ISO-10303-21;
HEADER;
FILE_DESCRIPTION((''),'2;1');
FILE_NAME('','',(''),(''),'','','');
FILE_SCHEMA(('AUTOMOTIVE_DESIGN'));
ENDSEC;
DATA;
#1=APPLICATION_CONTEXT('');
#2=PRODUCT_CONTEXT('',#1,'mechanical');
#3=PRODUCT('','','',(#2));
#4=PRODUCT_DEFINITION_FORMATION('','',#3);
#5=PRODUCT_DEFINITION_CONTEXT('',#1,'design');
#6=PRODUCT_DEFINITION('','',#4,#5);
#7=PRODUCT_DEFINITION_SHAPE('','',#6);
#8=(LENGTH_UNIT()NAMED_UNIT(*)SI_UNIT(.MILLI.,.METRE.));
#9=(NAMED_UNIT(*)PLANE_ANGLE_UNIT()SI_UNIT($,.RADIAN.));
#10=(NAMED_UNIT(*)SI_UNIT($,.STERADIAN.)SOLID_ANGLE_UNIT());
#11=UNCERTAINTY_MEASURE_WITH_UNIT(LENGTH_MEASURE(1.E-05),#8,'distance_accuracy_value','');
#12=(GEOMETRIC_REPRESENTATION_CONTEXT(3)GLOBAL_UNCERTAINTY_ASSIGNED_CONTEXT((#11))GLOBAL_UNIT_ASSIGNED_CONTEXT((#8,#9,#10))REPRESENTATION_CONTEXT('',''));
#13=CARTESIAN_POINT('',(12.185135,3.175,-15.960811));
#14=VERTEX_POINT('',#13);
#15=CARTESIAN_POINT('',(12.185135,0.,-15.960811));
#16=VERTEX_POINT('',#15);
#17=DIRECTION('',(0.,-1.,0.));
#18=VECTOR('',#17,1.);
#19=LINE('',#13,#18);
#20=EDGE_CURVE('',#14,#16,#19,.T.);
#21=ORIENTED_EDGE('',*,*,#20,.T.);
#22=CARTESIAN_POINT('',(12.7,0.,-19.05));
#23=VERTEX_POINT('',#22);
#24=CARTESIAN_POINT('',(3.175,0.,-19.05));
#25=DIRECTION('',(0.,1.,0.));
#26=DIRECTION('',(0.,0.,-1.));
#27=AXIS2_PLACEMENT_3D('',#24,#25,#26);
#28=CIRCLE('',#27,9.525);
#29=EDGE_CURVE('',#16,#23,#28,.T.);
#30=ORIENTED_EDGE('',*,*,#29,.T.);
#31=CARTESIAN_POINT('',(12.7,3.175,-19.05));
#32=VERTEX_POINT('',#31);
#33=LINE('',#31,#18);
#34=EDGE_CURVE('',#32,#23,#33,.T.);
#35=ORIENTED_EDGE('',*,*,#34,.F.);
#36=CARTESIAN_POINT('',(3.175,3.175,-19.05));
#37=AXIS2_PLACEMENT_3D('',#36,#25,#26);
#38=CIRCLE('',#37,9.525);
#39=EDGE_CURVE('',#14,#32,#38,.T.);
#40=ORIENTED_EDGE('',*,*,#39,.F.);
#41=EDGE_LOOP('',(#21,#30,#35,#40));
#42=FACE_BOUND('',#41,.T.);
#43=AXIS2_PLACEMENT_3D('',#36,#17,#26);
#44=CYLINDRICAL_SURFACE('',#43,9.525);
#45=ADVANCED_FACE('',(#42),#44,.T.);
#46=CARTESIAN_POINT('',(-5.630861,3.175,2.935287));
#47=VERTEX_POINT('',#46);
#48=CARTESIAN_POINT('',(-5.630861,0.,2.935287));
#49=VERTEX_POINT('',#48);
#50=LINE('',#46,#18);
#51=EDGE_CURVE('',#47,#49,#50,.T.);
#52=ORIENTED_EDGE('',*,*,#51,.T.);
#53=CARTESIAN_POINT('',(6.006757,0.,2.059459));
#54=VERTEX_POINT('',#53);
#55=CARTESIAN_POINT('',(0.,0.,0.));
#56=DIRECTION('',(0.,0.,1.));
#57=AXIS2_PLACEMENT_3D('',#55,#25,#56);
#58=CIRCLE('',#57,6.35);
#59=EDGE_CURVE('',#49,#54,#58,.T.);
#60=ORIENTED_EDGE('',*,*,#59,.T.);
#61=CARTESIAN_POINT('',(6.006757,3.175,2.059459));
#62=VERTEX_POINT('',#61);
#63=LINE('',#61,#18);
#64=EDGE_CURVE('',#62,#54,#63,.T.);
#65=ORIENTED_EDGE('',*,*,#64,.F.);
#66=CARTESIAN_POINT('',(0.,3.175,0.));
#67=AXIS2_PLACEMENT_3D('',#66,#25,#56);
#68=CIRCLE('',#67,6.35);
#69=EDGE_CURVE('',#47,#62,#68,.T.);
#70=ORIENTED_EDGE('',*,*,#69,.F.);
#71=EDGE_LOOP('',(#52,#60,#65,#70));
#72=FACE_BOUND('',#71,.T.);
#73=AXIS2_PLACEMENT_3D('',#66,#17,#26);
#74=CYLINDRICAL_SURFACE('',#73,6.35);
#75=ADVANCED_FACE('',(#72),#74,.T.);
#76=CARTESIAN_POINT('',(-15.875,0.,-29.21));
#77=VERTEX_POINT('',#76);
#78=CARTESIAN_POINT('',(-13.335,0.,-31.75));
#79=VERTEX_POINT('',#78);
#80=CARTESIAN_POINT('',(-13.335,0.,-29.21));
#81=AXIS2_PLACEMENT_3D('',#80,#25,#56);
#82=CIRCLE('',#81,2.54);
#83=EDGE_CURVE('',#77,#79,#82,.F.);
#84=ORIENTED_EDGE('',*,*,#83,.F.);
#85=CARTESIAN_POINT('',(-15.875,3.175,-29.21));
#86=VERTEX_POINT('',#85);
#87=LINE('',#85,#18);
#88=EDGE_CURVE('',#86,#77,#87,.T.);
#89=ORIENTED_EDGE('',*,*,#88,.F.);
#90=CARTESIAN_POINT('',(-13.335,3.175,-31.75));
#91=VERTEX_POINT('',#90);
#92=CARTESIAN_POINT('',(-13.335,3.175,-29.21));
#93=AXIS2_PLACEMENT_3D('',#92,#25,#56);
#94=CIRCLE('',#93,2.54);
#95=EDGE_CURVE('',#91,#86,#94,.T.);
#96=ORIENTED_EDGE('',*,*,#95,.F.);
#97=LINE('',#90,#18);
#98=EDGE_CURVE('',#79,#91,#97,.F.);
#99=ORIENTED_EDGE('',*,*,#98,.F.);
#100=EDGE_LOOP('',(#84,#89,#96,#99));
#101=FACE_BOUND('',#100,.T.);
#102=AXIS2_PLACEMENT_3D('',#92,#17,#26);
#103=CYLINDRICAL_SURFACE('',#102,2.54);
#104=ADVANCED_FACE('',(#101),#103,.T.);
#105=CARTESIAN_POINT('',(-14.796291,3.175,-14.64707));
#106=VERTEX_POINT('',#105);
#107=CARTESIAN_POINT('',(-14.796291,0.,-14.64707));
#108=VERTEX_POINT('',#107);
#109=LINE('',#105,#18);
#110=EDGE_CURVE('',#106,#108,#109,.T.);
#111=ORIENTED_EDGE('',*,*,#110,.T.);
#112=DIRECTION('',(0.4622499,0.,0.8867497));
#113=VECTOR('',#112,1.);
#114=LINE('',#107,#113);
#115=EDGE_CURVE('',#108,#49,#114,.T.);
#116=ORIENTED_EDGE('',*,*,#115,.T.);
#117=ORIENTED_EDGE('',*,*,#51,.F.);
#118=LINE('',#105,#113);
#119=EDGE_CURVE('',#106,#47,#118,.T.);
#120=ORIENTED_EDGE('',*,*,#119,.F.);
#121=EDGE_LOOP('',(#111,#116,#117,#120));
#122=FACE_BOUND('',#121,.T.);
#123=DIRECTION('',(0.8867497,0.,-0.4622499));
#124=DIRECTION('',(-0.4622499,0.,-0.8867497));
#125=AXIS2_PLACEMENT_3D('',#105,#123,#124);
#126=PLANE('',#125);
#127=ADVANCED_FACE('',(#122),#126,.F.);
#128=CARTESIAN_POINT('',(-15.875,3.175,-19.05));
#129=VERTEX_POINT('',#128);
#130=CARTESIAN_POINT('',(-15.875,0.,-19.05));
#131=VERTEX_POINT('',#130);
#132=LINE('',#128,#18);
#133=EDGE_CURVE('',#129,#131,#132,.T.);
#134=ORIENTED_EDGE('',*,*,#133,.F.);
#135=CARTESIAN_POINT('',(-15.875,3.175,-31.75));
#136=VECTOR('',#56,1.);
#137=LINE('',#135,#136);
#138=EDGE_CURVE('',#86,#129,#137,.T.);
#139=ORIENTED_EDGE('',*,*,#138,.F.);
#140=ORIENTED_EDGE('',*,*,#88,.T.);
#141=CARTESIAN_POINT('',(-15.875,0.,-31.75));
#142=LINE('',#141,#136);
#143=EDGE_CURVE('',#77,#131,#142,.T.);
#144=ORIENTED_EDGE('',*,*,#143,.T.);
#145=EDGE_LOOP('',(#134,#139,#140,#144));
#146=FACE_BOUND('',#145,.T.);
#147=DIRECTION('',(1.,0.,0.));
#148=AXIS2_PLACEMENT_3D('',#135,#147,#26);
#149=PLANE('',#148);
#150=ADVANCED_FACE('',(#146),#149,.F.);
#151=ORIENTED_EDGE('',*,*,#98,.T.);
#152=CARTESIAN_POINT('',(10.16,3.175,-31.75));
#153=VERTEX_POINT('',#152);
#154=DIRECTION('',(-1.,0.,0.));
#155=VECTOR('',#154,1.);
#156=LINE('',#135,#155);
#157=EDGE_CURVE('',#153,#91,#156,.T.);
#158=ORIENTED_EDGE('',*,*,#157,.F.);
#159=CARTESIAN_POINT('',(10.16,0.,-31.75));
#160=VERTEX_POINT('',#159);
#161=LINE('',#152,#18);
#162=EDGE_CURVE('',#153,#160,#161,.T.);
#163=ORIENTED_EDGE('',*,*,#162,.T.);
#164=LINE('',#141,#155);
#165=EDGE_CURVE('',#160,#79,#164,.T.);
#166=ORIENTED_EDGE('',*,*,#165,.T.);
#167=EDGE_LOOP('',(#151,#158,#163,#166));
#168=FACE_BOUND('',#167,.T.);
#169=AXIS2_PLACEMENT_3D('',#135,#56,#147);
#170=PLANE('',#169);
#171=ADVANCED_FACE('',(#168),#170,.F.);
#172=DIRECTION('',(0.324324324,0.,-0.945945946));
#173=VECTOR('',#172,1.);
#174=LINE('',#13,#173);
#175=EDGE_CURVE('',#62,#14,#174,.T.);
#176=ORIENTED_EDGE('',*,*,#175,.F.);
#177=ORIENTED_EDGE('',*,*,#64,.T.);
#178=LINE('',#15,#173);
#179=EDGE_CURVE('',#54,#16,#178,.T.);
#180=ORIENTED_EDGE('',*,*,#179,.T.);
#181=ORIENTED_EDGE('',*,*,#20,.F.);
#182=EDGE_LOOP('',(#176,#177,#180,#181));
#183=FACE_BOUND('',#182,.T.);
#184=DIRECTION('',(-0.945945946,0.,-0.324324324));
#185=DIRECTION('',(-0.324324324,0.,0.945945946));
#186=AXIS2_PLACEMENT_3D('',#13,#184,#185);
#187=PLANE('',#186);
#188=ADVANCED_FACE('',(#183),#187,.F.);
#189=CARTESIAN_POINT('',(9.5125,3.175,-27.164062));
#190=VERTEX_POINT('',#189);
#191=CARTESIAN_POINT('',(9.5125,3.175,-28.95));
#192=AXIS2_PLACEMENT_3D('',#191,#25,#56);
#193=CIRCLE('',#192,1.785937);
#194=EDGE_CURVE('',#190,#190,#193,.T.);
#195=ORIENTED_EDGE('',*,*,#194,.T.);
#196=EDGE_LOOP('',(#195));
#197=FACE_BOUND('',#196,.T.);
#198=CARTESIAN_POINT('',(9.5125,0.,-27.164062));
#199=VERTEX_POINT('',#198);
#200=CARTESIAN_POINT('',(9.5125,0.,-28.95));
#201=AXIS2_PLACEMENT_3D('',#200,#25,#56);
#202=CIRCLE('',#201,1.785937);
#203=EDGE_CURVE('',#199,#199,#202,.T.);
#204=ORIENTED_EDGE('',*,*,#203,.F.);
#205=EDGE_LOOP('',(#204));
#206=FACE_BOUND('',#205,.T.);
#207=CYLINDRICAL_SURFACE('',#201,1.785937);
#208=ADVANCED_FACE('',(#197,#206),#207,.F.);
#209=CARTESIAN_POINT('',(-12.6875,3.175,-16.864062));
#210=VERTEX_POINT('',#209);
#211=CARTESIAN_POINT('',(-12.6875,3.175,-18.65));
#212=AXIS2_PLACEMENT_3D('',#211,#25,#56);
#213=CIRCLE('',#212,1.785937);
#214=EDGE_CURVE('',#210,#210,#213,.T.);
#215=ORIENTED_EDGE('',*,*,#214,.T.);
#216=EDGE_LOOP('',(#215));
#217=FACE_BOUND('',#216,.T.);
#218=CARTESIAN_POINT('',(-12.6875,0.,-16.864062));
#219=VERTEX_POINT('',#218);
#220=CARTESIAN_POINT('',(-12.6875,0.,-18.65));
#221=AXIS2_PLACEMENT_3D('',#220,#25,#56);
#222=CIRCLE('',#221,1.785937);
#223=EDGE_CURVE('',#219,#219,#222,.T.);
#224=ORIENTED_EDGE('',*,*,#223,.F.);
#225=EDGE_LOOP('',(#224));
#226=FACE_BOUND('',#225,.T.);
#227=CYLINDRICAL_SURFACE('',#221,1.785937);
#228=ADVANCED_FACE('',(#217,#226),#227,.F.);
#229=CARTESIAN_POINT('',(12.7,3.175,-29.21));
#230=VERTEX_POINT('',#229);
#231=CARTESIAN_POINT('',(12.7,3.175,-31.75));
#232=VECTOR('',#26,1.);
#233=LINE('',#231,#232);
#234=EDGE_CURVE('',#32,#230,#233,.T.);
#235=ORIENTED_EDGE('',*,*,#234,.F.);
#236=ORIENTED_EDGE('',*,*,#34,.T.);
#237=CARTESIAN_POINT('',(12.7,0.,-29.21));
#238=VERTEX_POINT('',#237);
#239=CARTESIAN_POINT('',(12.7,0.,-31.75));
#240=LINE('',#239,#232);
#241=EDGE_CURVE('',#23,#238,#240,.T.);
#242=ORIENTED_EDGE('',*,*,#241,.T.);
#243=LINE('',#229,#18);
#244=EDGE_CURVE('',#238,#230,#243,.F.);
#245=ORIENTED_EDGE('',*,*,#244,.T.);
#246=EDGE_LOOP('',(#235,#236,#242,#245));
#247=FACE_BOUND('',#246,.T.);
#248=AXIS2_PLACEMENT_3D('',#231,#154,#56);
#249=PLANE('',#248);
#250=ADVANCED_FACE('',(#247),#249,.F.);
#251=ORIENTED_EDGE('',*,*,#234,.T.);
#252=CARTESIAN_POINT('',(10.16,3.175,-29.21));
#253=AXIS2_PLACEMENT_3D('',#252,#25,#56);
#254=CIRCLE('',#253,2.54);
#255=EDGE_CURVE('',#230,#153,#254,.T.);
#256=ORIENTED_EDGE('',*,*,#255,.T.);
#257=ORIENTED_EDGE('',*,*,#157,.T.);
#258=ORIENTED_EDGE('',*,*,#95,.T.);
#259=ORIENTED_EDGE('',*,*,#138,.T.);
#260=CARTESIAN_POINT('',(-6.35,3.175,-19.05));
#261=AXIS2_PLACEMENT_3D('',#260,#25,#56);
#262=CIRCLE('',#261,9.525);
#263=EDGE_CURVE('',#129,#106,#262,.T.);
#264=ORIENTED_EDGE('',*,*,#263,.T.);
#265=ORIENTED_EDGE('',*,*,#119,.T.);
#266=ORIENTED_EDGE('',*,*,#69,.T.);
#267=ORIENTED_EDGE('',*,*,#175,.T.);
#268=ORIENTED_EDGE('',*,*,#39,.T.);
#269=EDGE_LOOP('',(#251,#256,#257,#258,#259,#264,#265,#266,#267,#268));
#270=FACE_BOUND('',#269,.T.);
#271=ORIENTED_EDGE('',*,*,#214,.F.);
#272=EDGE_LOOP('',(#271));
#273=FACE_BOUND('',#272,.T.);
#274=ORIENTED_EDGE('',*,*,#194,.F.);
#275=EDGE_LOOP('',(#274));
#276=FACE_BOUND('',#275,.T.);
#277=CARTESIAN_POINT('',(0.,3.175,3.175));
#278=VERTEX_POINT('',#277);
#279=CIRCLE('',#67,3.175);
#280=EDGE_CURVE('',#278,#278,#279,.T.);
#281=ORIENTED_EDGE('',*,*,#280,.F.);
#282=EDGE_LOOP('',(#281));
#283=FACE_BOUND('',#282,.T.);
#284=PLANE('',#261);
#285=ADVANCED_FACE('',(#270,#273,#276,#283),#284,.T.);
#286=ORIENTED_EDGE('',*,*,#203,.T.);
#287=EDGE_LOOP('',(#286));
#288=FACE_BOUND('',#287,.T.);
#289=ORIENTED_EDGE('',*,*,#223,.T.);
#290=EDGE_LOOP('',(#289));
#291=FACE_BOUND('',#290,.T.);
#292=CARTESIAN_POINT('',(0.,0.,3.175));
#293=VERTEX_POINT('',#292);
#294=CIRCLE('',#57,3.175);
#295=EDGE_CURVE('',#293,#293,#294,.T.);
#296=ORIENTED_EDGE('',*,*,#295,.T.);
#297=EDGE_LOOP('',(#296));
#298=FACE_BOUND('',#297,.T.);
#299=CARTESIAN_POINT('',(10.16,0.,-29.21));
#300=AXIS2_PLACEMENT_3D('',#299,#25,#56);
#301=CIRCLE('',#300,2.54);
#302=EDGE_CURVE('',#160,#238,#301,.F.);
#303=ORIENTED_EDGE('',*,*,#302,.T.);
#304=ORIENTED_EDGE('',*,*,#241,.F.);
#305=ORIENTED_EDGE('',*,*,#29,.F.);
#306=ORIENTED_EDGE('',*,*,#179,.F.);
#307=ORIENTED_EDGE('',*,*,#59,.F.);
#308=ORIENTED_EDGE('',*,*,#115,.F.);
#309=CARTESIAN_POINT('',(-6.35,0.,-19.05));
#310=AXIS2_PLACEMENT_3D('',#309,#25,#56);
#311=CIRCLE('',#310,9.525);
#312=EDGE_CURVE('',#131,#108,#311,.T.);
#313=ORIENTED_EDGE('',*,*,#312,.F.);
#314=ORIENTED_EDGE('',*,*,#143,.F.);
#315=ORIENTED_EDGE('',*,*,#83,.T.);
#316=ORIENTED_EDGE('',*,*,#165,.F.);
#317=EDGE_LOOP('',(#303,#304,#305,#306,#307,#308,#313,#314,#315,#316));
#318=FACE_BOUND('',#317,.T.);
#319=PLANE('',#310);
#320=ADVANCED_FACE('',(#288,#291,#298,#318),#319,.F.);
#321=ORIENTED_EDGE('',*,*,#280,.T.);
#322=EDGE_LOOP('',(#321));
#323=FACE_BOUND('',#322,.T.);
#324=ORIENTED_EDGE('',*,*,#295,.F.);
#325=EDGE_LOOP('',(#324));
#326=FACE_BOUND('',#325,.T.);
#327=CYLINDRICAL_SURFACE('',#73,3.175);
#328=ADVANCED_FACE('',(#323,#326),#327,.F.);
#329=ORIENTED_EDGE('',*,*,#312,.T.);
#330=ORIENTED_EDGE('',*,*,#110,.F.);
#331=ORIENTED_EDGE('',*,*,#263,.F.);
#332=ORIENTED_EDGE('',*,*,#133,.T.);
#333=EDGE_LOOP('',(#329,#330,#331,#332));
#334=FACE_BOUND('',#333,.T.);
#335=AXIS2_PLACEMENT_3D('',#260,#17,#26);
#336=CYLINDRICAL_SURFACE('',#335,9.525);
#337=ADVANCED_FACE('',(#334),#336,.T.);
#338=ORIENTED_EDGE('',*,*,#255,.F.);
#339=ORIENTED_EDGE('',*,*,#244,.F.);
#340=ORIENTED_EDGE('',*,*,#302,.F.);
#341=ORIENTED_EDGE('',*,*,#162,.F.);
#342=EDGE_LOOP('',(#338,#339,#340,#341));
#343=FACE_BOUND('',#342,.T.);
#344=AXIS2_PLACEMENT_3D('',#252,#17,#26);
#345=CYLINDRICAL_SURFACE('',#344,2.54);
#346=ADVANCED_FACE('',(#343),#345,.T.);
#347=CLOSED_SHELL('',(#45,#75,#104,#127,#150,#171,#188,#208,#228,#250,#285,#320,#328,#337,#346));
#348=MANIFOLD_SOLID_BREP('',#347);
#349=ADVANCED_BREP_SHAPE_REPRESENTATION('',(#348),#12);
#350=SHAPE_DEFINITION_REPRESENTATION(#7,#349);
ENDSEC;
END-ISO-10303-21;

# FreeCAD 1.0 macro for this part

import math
import FreeCAD as App
import Part
import Sketcher
from FreeCAD import Vector
Q = App.Units.Quantity


def edges_at(feature, points):
    """Names of the edges that pass closest to the given points."""
    edges = feature.Shape.Edges
    near = lambda p: min(range(len(edges)), key=lambda i: edges[i].distToShape(Part.Vertex(*p))[0])
    return sorted({f"Edge{near(p) + 1}" for p in points})

doc = App.newDocument("Part")
body = doc.addObject("PartDesign::Body", "Body")

sketch1 = doc.addObject("Sketcher::SketchObject", "Sketch")
body.addObject(sketch1)
sketch1.AttachmentSupport = (doc.XZ_Plane, [""])
sketch1.MapMode = "FlatFace"
sketch1.addGeometry(Part.LineSegment(Vector(-14.8, -14.6, 0), Vector(-5.6, 2.9, 0)), False)
sketch1.addGeometry(Part.ArcOfCircle(Part.Circle(Vector(0, 0, 0), Vector(0, 0, 1), 6.3), math.radians(19), math.radians(152)), False)
sketch1.addGeometry(Part.LineSegment(Vector(6, 2.1, 0), Vector(12.2, -16, 0)), False)
sketch1.addGeometry(Part.ArcOfCircle(Part.Circle(Vector(3.2, -19, 0), Vector(0, 0, 1), 9.5), math.radians(0), math.radians(18.92)), False)
sketch1.addGeometry(Part.LineSegment(Vector(12.7, -19.1, 0), Vector(12.7, -31.8, 0)), False)
sketch1.addGeometry(Part.LineSegment(Vector(12.7, -31.8, 0), Vector(-15.9, -31.8, 0)), False)
sketch1.addGeometry(Part.LineSegment(Vector(-15.9, -31.8, 0), Vector(-15.9, -19.1, 0)), False)
sketch1.addGeometry(Part.ArcOfCircle(Part.Circle(Vector(-6.4, -19, 0), Vector(0, 0, 1), 9.5), math.radians(152), math.radians(180)), False)
sketch1.addGeometry(Part.Circle(Vector(0, 0, 0), Vector(0, 0, 1), 3.2), False)
sketch1.addConstraint(Sketcher.Constraint("Tangent", 0, 2, 1, 2))
sketch1.addConstraint(Sketcher.Constraint("Tangent", 1, 1, 2, 1))
sketch1.addConstraint(Sketcher.Constraint("Tangent", 2, 2, 3, 2))
sketch1.addConstraint(Sketcher.Constraint("Tangent", 3, 1, 4, 1))
sketch1.addConstraint(Sketcher.Constraint("Coincident", 4, 2, 5, 1))
sketch1.addConstraint(Sketcher.Constraint("Coincident", 5, 2, 6, 1))
sketch1.addConstraint(Sketcher.Constraint("Tangent", 6, 2, 7, 2))
sketch1.addConstraint(Sketcher.Constraint("Tangent", 7, 1, 0, 1))
sketch1.addConstraint(Sketcher.Constraint("Vertical", 4))
sketch1.addConstraint(Sketcher.Constraint("Horizontal", 5))
sketch1.addConstraint(Sketcher.Constraint("Vertical", 6))
sketch1.addConstraint(Sketcher.Constraint("Coincident", 1, 3, -1, 1))
sketch1.addConstraint(Sketcher.Constraint("Coincident", 8, 3, -1, 1))
sketch1.addConstraint(Sketcher.Constraint("Equal", 3, 7))
sketch1.addConstraint(Sketcher.Constraint("Horizontal", 3, 3, 7, 3))
sketch1.addConstraint(Sketcher.Constraint("Diameter", 8, Q("0.25 in")))
sketch1.addConstraint(Sketcher.Constraint("Radius", 1, Q("0.25 in")))
sketch1.addConstraint(Sketcher.Constraint("DistanceY", 4, 2, 4, 1, Q("0.5 in")))
sketch1.addConstraint(Sketcher.Constraint("Radius", 3, Q("0.375 in")))
sketch1.addConstraint(Sketcher.Constraint("DistanceX", -1, 1, 3, 1, Q("0.5 in")))
sketch1.addConstraint(Sketcher.Constraint("Distance", 2, Q("0.75 in")))
sketch1.addConstraint(Sketcher.Constraint("DistanceX", 5, 2, 5, 1, Q("1.125 in")))
pad1 = doc.addObject("PartDesign::Pad", "Pad")
body.addObject(pad1)
pad1.Profile = sketch1
pad1.Length = Q("0.125 in")
pad1.Reversed = True

sketch2 = doc.addObject("Sketcher::SketchObject", "Sketch001")
body.addObject(sketch2)
sketch2.AttachmentSupport = (doc.XZ_Plane, [""])
sketch2.MapMode = "FlatFace"
sketch2.AttachmentOffset = App.Placement(Vector(0, 0, -0.125 * 25.4), App.Rotation())
sketch2.addGeometry(Part.Circle(Vector(-12.7, -18.6, 0), Vector(0, 0, 1), 1.8), False)
sketch2.addGeometry(Part.Circle(Vector(9.5, -28.9, 0), Vector(0, 0, 1), 1.8), False)
sketch2.addConstraint(Sketcher.Constraint("Equal", 0, 1))
sketch2.addConstraint(Sketcher.Constraint("Diameter", 0, Q("0.140625 in")))
sketch2.addConstraint(Sketcher.Constraint("DistanceX", 0, 3, -1, 1, Q("12.6875 mm")))
sketch2.addConstraint(Sketcher.Constraint("DistanceY", 0, 3, -1, 1, Q("18.65 mm")))
sketch2.addConstraint(Sketcher.Constraint("DistanceX", -1, 1, 1, 3, Q("9.5125 mm")))
sketch2.addConstraint(Sketcher.Constraint("DistanceY", 1, 3, -1, 1, Q("28.95 mm")))
pocket1 = doc.addObject("PartDesign::Pocket", "Pocket")
body.addObject(pocket1)
pocket1.Profile = sketch2
pocket1.Type = "ThroughAll"
pocket1.Reversed = True
doc.recompute()

fillet = doc.addObject("PartDesign::Fillet", "Fillet")
body.addObject(fillet)
fillet.Base = (pocket1, edges_at(pocket1, [(-15.875, 1.587, -31.75), (12.7, 1.587, -31.75)]))
fillet.Radius = Q("0.1 in")

doc.recompute()
